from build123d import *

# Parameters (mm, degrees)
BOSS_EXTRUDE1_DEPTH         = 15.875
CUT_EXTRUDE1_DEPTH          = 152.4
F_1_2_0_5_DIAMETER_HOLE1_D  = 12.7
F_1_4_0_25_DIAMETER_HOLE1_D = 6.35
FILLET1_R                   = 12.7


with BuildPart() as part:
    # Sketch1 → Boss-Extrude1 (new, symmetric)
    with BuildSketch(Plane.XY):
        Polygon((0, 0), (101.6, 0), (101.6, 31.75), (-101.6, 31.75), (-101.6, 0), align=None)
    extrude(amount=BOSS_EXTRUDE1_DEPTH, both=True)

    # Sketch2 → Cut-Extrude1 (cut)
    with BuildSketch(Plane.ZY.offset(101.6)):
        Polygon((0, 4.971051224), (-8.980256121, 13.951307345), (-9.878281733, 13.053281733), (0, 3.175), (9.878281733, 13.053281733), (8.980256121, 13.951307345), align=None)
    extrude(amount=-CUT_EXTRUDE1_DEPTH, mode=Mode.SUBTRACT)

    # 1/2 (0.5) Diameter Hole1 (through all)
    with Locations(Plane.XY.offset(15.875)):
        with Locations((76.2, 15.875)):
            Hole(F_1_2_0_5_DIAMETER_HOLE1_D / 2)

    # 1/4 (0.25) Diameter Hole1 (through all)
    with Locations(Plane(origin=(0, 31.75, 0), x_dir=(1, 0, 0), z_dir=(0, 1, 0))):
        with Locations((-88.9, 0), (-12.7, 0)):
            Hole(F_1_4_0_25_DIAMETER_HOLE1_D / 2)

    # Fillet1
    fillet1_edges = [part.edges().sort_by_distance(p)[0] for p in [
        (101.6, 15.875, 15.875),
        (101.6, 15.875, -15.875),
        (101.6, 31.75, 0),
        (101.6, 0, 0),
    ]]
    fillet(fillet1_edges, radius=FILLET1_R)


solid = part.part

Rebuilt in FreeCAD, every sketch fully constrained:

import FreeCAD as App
import Part
import Sketcher
Q = App.Units.Quantity


def edges_at(feature, points):
    """Names of the edges that pass closest to the given points."""
    edges = feature.Shape.Edges
    near = lambda p: min(range(len(edges)), key=lambda i: edges[i].distToShape(Part.Vertex(*p))[0])
    return sorted({f"Edge{near(p) + 1}" for p in points})


def add_polygon(sketch, points):
    """Adds a closed chain of lines whose ends are joined by coincident constraints."""
    first, n = sketch.GeometryCount, len(points)
    for a, b in zip(points, points[1:] + points[:1]):
        sketch.addGeometry(Part.LineSegment(App.Vector(*a, 0), App.Vector(*b, 0)), False)
    for i in range(n):
        sketch.addConstraint(Sketcher.Constraint("Coincident", first + i, 2, first + (i + 1) % n, 1))

doc = App.newDocument("Part")
body = doc.addObject("PartDesign::Body", "Body")

# Sketch on XY plane
sketch1 = body.newObject("Sketcher::SketchObject", "Sketch")
sketch1.AttachmentSupport = (doc.getObject("XY_Plane"), [""])
sketch1.MapMode = "FlatFace"
add_polygon(sketch1, [(102, 0), (102, 32), (-102, 32), (-102, 0)])  # lines 0-3
sketch1.addConstraint([
    Sketcher.Constraint("Vertical", 0),
    Sketcher.Constraint("Horizontal", 1),
    Sketcher.Constraint("Vertical", 2),
    Sketcher.Constraint("Horizontal", 3),
    Sketcher.Constraint("Symmetric", 2, 2, 3, 2, -1, 1),
    Sketcher.Constraint("DistanceX", 1, 2, 1, 1, Q("8 in")),
    Sketcher.Constraint("DistanceY", 0, 1, 0, 2, Q("1.25 in")),
])
pad1 = body.newObject("PartDesign::Pad", "Pad")
pad1.Profile = sketch1
pad1.Length = Q("1.25 in")
pad1.Midplane = True

# Sketch on YZ plane
sketch2 = body.newObject("Sketcher::SketchObject", "Sketch001")
sketch2.AttachmentSupport = (doc.getObject("YZ_Plane"), [""])
sketch2.MapMode = "FlatFace"
sketch2.AttachmentOffset = App.Placement(App.Vector(0, 0, -4 * 25.4), App.Rotation())
add_polygon(sketch2, [(5, 0), (14, -9), (13.1, -9.9), (3.2, 0), (13.1, 9.9), (14, 9)])  # lines 0-5
sketch2.addConstraint([
    Sketcher.Constraint("Symmetric", 1, 2, 3, 2, -1),
    Sketcher.Constraint("Symmetric", 0, 2, 4, 2, -1),
    Sketcher.Constraint("PointOnObject", 2, 2, -1),
    Sketcher.Constraint("PointOnObject", 5, 2, -1),
    Sketcher.Constraint("Perpendicular", 0, 1),
    Sketcher.Constraint("Perpendicular", 1, 2),
    Sketcher.Constraint("Perpendicular", 2, 3),
    Sketcher.Constraint("Distance", 0, Q("0.5 in")),
    Sketcher.Constraint("Distance", 1, Q("0.05 in")),
    Sketcher.Constraint("DistanceX", -1, 1, 2, 2, Q("0.125 in")),
])
pocket1 = body.newObject("PartDesign::Pocket", "Pocket")
pocket1.Profile = sketch2
pocket1.Length = Q("6 in")
pocket1.Reversed = True

# Sketch on XY plane
sketch3 = body.newObject("Sketcher::SketchObject", "Sketch002")
sketch3.AttachmentSupport = (doc.getObject("XY_Plane"), [""])
sketch3.MapMode = "FlatFace"
sketch3.AttachmentOffset = App.Placement(App.Vector(0, 0, 0.625 * 25.4), App.Rotation())
sketch3.addGeometry(Part.Circle(App.Vector(76, 16, 0), App.Vector(0, 0, 1), 6), False)
sketch3.addConstraint([
    Sketcher.Constraint("Diameter", 0, Q("0.5 in")),
    Sketcher.Constraint("DistanceX", -1, 1, 0, 3, Q("3 in")),
    Sketcher.Constraint("DistanceY", -1, 1, 0, 3, Q("0.625 in")),
])
doc.recompute()
hole = body.newObject("PartDesign::Hole", "Hole")
hole.Profile = sketch3
hole.ThreadType = "None"
hole.Diameter = Q("0.5 in")
hole.DepthType = "ThroughAll"

# Sketch on XZ plane
sketch4 = body.newObject("Sketcher::SketchObject", "Sketch003")
sketch4.AttachmentSupport = (doc.getObject("XZ_Plane"), [""])
sketch4.MapMode = "FlatFace"
sketch4.AttachmentOffset = App.Placement(App.Vector(0, 0, -1.25 * 25.4), App.Rotation())
sketch4.addGeometry([
    Part.Circle(App.Vector(-88.9, 0, 0), App.Vector(0, 0, 1), 3.2),
    Part.Circle(App.Vector(-12.7, 0, 0), App.Vector(0, 0, 1), 3.2),
], False)
sketch4.addConstraint([
    Sketcher.Constraint("Equal", 0, 1),
    Sketcher.Constraint("PointOnObject", 0, 3, -1),
    Sketcher.Constraint("PointOnObject", 1, 3, -1),
    Sketcher.Constraint("Diameter", 0, Q("0.25 in")),
    Sketcher.Constraint("DistanceX", 0, 3, 1, 3, Q("3 in")),
    Sketcher.Constraint("DistanceX", 0, 3, -1, 1, Q("3.5 in")),
])
doc.recompute()
hole2 = body.newObject("PartDesign::Hole", "Hole001")
hole2.Profile = sketch4
hole2.ThreadType = "None"
hole2.Diameter = Q("0.25 in")
hole2.DepthType = "ThroughAll"
hole2.Reversed = True
doc.recompute()

fillet = body.newObject("PartDesign::Fillet", "Fillet")
fillet.Base = (hole2, edges_at(hole2, [
    (101.6, 15.875, 15.875),
    (101.6, 15.875, -15.875),
    (101.6, 31.75, 0),
    (101.6, 0, 0),
]))
fillet.Radius = Q("0.5 in")

doc.recompute()
